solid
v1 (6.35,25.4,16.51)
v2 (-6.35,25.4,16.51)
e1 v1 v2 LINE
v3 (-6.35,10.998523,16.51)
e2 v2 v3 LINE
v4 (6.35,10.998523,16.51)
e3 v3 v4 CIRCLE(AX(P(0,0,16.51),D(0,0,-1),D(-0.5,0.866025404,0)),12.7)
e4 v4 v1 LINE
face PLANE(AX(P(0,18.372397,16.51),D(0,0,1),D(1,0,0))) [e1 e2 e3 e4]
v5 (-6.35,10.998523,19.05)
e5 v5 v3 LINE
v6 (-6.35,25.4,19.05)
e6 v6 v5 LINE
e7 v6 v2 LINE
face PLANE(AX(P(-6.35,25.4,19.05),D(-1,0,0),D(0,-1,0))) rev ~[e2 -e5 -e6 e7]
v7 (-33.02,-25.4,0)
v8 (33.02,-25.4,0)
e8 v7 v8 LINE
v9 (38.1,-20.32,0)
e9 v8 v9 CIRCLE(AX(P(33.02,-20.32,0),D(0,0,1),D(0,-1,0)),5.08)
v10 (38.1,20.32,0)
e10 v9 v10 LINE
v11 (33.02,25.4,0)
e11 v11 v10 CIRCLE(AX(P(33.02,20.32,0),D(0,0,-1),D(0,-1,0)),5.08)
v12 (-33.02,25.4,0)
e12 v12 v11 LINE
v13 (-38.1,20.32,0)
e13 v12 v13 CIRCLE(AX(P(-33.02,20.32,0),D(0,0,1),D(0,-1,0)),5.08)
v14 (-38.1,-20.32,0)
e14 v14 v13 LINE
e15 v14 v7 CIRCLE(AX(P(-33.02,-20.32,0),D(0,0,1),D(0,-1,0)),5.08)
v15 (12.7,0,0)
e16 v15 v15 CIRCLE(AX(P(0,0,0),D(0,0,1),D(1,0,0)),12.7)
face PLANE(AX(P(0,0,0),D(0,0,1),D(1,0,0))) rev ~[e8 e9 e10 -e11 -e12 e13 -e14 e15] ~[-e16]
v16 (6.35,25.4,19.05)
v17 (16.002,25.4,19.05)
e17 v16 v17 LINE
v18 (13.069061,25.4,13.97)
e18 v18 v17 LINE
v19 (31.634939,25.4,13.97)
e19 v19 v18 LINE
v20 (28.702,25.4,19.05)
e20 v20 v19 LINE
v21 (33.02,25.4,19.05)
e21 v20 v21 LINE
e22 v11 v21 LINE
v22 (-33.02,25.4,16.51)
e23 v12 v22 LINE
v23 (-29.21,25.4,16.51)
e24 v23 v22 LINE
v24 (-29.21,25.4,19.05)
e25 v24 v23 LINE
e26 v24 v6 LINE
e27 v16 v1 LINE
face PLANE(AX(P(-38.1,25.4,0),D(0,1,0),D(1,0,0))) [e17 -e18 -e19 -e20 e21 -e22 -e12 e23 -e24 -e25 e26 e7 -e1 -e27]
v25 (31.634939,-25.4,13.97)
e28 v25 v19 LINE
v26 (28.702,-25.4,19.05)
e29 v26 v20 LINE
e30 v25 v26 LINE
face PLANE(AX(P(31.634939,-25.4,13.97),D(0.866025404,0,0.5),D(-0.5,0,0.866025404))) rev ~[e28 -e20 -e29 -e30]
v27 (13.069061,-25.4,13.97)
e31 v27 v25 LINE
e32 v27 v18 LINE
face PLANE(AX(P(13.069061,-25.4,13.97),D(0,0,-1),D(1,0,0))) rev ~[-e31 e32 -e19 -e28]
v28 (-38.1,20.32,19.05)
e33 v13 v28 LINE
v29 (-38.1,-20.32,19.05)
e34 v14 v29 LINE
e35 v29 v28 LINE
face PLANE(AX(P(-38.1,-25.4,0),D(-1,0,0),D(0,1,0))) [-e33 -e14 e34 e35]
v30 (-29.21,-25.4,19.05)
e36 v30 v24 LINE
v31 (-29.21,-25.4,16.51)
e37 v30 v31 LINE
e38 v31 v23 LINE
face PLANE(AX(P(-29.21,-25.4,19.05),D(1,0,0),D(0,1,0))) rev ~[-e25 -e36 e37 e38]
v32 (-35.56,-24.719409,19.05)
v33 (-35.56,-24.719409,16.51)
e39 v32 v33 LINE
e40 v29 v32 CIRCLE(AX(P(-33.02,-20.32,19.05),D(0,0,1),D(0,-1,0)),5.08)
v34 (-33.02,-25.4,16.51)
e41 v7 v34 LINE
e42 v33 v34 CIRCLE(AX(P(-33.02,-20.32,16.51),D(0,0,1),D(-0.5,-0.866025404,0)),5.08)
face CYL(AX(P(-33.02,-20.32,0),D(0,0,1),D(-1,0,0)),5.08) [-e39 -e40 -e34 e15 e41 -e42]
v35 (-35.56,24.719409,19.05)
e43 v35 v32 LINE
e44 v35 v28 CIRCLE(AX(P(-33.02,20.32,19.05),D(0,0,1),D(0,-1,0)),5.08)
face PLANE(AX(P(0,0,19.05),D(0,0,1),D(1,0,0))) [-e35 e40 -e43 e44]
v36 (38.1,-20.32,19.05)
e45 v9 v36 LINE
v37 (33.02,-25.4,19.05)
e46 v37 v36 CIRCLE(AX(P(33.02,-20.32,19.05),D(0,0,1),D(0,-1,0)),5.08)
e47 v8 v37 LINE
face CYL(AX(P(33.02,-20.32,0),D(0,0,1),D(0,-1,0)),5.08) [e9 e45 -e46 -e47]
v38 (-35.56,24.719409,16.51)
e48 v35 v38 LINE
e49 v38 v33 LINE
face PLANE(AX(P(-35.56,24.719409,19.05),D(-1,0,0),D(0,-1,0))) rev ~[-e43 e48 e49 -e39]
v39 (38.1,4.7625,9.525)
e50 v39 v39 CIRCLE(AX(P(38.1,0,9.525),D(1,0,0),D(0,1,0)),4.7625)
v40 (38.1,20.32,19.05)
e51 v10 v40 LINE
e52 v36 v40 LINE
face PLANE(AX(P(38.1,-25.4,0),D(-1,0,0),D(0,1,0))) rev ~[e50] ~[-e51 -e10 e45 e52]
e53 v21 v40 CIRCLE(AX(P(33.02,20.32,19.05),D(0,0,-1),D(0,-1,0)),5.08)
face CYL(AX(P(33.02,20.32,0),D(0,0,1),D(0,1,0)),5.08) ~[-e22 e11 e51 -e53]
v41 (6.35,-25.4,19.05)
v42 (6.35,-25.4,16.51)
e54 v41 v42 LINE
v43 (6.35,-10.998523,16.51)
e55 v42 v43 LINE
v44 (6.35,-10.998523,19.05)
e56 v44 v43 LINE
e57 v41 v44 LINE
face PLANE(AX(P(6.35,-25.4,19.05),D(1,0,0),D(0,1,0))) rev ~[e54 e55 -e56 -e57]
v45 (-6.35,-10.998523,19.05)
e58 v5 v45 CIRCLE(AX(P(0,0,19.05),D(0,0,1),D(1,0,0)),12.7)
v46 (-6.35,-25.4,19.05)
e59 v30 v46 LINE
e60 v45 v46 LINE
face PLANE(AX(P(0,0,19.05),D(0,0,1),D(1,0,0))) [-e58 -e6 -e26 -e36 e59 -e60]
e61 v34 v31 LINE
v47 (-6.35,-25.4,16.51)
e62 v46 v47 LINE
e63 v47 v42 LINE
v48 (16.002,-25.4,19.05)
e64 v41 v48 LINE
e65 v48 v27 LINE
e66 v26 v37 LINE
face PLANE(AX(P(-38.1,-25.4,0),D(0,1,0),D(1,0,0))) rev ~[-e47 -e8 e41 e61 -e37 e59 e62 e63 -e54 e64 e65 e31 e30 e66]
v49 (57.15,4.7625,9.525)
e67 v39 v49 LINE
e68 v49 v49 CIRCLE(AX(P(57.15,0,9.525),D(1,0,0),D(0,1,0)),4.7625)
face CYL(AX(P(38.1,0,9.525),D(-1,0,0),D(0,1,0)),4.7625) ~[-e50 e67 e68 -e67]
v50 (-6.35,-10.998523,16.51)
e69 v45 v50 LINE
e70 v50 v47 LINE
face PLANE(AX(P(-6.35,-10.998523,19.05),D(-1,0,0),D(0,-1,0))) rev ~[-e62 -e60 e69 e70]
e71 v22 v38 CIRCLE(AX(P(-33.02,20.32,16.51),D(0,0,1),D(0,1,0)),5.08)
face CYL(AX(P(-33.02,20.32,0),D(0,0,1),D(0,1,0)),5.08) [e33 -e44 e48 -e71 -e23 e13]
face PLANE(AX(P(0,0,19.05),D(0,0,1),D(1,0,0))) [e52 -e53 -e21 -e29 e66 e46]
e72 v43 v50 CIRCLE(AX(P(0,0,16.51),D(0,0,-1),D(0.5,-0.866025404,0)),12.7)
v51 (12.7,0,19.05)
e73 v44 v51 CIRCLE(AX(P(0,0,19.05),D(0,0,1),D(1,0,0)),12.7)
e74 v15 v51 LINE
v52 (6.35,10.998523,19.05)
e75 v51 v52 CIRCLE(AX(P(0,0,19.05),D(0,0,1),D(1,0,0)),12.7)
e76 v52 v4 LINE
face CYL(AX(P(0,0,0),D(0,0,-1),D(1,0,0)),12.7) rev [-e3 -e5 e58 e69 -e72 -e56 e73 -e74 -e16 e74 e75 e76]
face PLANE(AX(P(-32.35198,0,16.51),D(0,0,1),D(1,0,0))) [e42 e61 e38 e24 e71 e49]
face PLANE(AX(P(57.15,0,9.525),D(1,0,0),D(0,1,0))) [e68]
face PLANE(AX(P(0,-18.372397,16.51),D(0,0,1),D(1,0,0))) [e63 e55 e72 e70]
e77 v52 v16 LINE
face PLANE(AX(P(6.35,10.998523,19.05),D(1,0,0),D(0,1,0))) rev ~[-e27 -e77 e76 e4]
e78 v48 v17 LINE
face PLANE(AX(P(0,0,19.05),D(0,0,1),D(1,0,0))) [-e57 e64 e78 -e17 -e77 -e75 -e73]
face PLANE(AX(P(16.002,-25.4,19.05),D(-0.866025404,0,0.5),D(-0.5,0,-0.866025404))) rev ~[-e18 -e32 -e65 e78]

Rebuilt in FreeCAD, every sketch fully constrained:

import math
import FreeCAD as App
import Part
import Sketcher
Q = App.Units.Quantity


def edges_at(feature, points):
    """Names of the edges that pass closest to the given points."""
    edges = feature.Shape.Edges
    near = lambda p: min(range(len(edges)), key=lambda i: edges[i].distToShape(Part.Vertex(*p))[0])
    return sorted({f"Edge{near(p) + 1}" for p in points})


def add_polygon(sketch, points):
    """Adds a closed chain of lines whose ends are joined by coincident constraints."""
    first, n = sketch.GeometryCount, len(points)
    for a, b in zip(points, points[1:] + points[:1]):
        sketch.addGeometry(Part.LineSegment(App.Vector(*a, 0), App.Vector(*b, 0)), False)
    for i in range(n):
        sketch.addConstraint(Sketcher.Constraint("Coincident", first + i, 2, first + (i + 1) % n, 1))

doc = App.newDocument("Part")
body = doc.addObject("PartDesign::Body", "Body")

# Sketch on XY plane
sketch1 = doc.addObject("Sketcher::SketchObject", "Sketch")
body.addObject(sketch1)
sketch1.AttachmentSupport = (doc.XY_Plane, [""])
sketch1.MapMode = "FlatFace"
add_polygon(sketch1, [(-38, 25), (-38, -25), (38, -25), (38, 25)])  # lines 0-3
sketch1.addGeometry(Part.Circle(App.Vector(0, 0, 0), App.Vector(0, 0, 1), 13), False)  # 4
sketch1.addConstraint(Sketcher.Constraint("Vertical", 0))
sketch1.addConstraint(Sketcher.Constraint("Horizontal", 1))
sketch1.addConstraint(Sketcher.Constraint("Vertical", 2))
sketch1.addConstraint(Sketcher.Constraint("Horizontal", 3))
sketch1.addConstraint(Sketcher.Constraint("Coincident", 4, 3, -1, 1))
sketch1.addConstraint(Sketcher.Constraint("Symmetric", 0, 2, 2, 2, -1, 1))
sketch1.addConstraint(Sketcher.Constraint("Diameter", 4, Q("1 in")))
sketch1.addConstraint(Sketcher.Constraint("DistanceX", 1, 1, 1, 2, Q("3 in")))
sketch1.addConstraint(Sketcher.Constraint("DistanceY", 0, 2, 0, 1, Q("2 in")))
pad1 = doc.addObject("PartDesign::Pad", "Pad")
body.addObject(pad1)
pad1.Profile = sketch1
pad1.Length = Q("0.75 in")
doc.recompute()

fillet = doc.addObject("PartDesign::Fillet", "Fillet")
body.addObject(fillet)
fillet.Base = (pad1, edges_at(pad1, [(-38.1, -25.4, 9.525)]))
fillet.Radius = Q("0.2 in")
doc.recompute()

fillet2 = doc.addObject("PartDesign::Fillet", "Fillet001")
body.addObject(fillet2)
fillet2.Base = (fillet, edges_at(fillet, [(38.1, -25.4, 9.525), (38.1, 25.4, 9.525)]))
fillet2.Radius = Q("0.2 in")
doc.recompute()

fillet3 = doc.addObject("PartDesign::Fillet", "Fillet002")
body.addObject(fillet3)
fillet3.Base = (fillet2, edges_at(fillet2, [(-38.1, 25.4, 9.525)]))
fillet3.Radius = Q("0.2 in")

# Sketch on XY plane
sketch2 = doc.addObject("Sketcher::SketchObject", "Sketch001")
body.addObject(sketch2)
sketch2.AttachmentSupport = (doc.XY_Plane, [""])
sketch2.MapMode = "FlatFace"
sketch2.AttachmentOffset = App.Placement(App.Vector(0, 0, 0.75 * 25.4), App.Rotation())
sketch2.addGeometry(Part.LineSegment(App.Vector(-29.2, 25.4, 0), App.Vector(-33, 25.4, 0)), False)
sketch2.addGeometry(Part.ArcOfCircle(Part.Circle(App.Vector(-33, 20.3, 0), App.Vector(0, 0, 1), 5.1), math.radians(90), math.radians(120)), False)
sketch2.addGeometry(Part.LineSegment(App.Vector(-35.6, 24.7, 0), App.Vector(-35.6, -24.7, 0)), False)
sketch2.addGeometry(Part.ArcOfCircle(Part.Circle(App.Vector(-33, -20.3, 0), App.Vector(0, 0, 1), 5.1), math.radians(-120), math.radians(-90)), False)
sketch2.addGeometry(Part.LineSegment(App.Vector(-33, -25.4, 0), App.Vector(-29.2, -25.4, 0)), False)
sketch2.addGeometry(Part.LineSegment(App.Vector(-29.2, -25.4, 0), App.Vector(-29.2, 25.4, 0)), False)
sketch2.addGeometry(Part.LineSegment(App.Vector(-6.3, -11, 0), App.Vector(-6.3, -25.4, 0)), False)
sketch2.addGeometry(Part.LineSegment(App.Vector(-6.3, -25.4, 0), App.Vector(6.3, -25.4, 0)), False)
sketch2.addGeometry(Part.LineSegment(App.Vector(6.3, -25.4, 0), App.Vector(6.3, -11, 0)), False)
sketch2.addGeometry(Part.ArcOfCircle(Part.Circle(App.Vector(0, 0, 0), App.Vector(0, 0, 1), 12.7), math.radians(-120), math.radians(-60)), False)
sketch2.addGeometry(Part.LineSegment(App.Vector(6.3, 25.4, 0), App.Vector(-6.3, 25.4, 0)), False)
sketch2.addGeometry(Part.LineSegment(App.Vector(-6.3, 25.4, 0), App.Vector(-6.3, 11, 0)), False)
sketch2.addGeometry(Part.ArcOfCircle(Part.Circle(App.Vector(0, 0, 0), App.Vector(0, 0, 1), 12.7), math.radians(60), math.radians(120)), False)
sketch2.addGeometry(Part.LineSegment(App.Vector(6.3, 11, 0), App.Vector(6.3, 25.4, 0)), False)
sketch2.addConstraint(Sketcher.Constraint("Tangent", 0, 2, 1, 1))
sketch2.addConstraint(Sketcher.Constraint("Coincident", 1, 2, 2, 1))
sketch2.addConstraint(Sketcher.Constraint("Coincident", 2, 2, 3, 1))
sketch2.addConstraint(Sketcher.Constraint("Tangent", 3, 2, 4, 1))
sketch2.addConstraint(Sketcher.Constraint("Coincident", 4, 2, 5, 1))
sketch2.addConstraint(Sketcher.Constraint("Coincident", 5, 2, 0, 1))
sketch2.addConstraint(Sketcher.Constraint("Coincident", 6, 2, 7, 1))
sketch2.addConstraint(Sketcher.Constraint("Coincident", 7, 2, 8, 1))
sketch2.addConstraint(Sketcher.Constraint("Coincident", 8, 2, 9, 2))
sketch2.addConstraint(Sketcher.Constraint("Coincident", 9, 1, 6, 1))
sketch2.addConstraint(Sketcher.Constraint("Coincident", 10, 2, 11, 1))
sketch2.addConstraint(Sketcher.Constraint("Coincident", 11, 2, 12, 2))
sketch2.addConstraint(Sketcher.Constraint("Coincident", 12, 1, 13, 1))
sketch2.addConstraint(Sketcher.Constraint("Coincident", 13, 2, 10, 1))
sketch2.addConstraint(Sketcher.Constraint("Horizontal", 0))
sketch2.addConstraint(Sketcher.Constraint("Vertical", 2))
sketch2.addConstraint(Sketcher.Constraint("Horizontal", 4))
sketch2.addConstraint(Sketcher.Constraint("Vertical", 5))
sketch2.addConstraint(Sketcher.Constraint("Vertical", 6))
sketch2.addConstraint(Sketcher.Constraint("Horizontal", 7))
sketch2.addConstraint(Sketcher.Constraint("Vertical", 8))
sketch2.addConstraint(Sketcher.Constraint("Horizontal", 10))
sketch2.addConstraint(Sketcher.Constraint("Vertical", 11))
sketch2.addConstraint(Sketcher.Constraint("Vertical", 13))
sketch2.addConstraint(Sketcher.Constraint("Coincident", 9, 3, -1, 1))
sketch2.addConstraint(Sketcher.Constraint("Coincident", 12, 3, -1, 1))
sketch2.addConstraint(Sketcher.Constraint("Equal", 1, 3))
sketch2.addConstraint(Sketcher.Constraint("Equal", 9, 12))
sketch2.addConstraint(Sketcher.Constraint("Symmetric", 7, 2, 10, 2, -1, 1))
sketch2.addConstraint(Sketcher.Constraint("Symmetric", 1, 3, 3, 3, -1))
sketch2.addConstraint(Sketcher.Constraint("Horizontal", 4, 2, 6, 2))
sketch2.addConstraint(Sketcher.Constraint("Horizontal", 8, 2, 9, 1))
sketch2.addConstraint(Sketcher.Constraint("Horizontal", 11, 2, 12, 1))
sketch2.addConstraint(Sketcher.Constraint("Radius", 1, Q("0.2 in")))
sketch2.addConstraint(Sketcher.Constraint("Radius", 9, Q("0.5 in")))
sketch2.addConstraint(Sketcher.Constraint("DistanceY", 5, 1, 5, 2, Q("2 in")))
sketch2.addConstraint(Sketcher.Constraint("DistanceX", 7, 1, 7, 2, Q("0.5 in")))
sketch2.addConstraint(Sketcher.Constraint("DistanceX", 0, 2, 0, 1, Q("0.15 in")))
sketch2.addConstraint(Sketcher.Constraint("DistanceX", 1, 3, -1, 1, Q("1.3 in")))
sketch2.addConstraint(Sketcher.Constraint("DistanceX", 1, 2, -1, 1, Q("1.4 in")))
pocket1 = doc.addObject("PartDesign::Pocket", "Pocket")
body.addObject(pocket1)
pocket1.Profile = sketch2
pocket1.Length = Q("0.1 in")

# Sketch on YZ plane
sketch3 = doc.addObject("Sketcher::SketchObject", "Sketch002")
body.addObject(sketch3)
sketch3.AttachmentSupport = (doc.YZ_Plane, [""])
sketch3.MapMode = "FlatFace"
sketch3.AttachmentOffset = App.Placement(App.Vector(0, 0, 1.5 * 25.4), App.Rotation())
sketch3.addGeometry(Part.Circle(App.Vector(0, 9.5, 0), App.Vector(0, 0, 1), 4.8), False)
sketch3.addConstraint(Sketcher.Constraint("PointOnObject", 0, 3, -2))
sketch3.addConstraint(Sketcher.Constraint("Diameter", 0, Q("0.375 in")))
sketch3.addConstraint(Sketcher.Constraint("DistanceY", -1, 1, 0, 3, Q("0.375 in")))
pad2 = doc.addObject("PartDesign::Pad", "Pad001")
body.addObject(pad2)
pad2.Profile = sketch3
pad2.Length = Q("0.75 in")

# Sketch on XZ plane
sketch4 = doc.addObject("Sketcher::SketchObject", "Sketch003")
body.addObject(sketch4)
sketch4.AttachmentSupport = (doc.XZ_Plane, [""])
sketch4.MapMode = "FlatFace"
sketch4.AttachmentOffset = App.Placement(App.Vector(0, 0, 1 * 25.4), App.Rotation())
add_polygon(sketch4, [(29, 19), (16, 19), (13, 14), (32, 14)])  # lines 0-3
sketch4.addConstraint(Sketcher.Constraint("Horizontal", 0))
sketch4.addConstraint(Sketcher.Constraint("Horizontal", 2))
sketch4.addConstraint(Sketcher.Constraint("Equal", 1, 3))
sketch4.addConstraint(Sketcher.Constraint("DistanceX", 0, 2, 0, 1, Q("0.5 in")))
sketch4.addConstraint(Sketcher.Constraint("Angle", 1, Q("-120 deg")))
sketch4.addConstraint(Sketcher.Constraint("DistanceY", 1, 2, 0, 2, Q("0.2 in")))
sketch4.addConstraint(Sketcher.Constraint("DistanceX", -1, 1, 0, 2, Q("0.63 in")))
sketch4.addConstraint(Sketcher.Constraint("DistanceY", -1, 1, 0, 2, Q("0.75 in")))
pocket2 = doc.addObject("PartDesign::Pocket", "Pocket001")
body.addObject(pocket2)
pocket2.Profile = sketch4
pocket2.Type = "ThroughAll"

doc.recompute()
